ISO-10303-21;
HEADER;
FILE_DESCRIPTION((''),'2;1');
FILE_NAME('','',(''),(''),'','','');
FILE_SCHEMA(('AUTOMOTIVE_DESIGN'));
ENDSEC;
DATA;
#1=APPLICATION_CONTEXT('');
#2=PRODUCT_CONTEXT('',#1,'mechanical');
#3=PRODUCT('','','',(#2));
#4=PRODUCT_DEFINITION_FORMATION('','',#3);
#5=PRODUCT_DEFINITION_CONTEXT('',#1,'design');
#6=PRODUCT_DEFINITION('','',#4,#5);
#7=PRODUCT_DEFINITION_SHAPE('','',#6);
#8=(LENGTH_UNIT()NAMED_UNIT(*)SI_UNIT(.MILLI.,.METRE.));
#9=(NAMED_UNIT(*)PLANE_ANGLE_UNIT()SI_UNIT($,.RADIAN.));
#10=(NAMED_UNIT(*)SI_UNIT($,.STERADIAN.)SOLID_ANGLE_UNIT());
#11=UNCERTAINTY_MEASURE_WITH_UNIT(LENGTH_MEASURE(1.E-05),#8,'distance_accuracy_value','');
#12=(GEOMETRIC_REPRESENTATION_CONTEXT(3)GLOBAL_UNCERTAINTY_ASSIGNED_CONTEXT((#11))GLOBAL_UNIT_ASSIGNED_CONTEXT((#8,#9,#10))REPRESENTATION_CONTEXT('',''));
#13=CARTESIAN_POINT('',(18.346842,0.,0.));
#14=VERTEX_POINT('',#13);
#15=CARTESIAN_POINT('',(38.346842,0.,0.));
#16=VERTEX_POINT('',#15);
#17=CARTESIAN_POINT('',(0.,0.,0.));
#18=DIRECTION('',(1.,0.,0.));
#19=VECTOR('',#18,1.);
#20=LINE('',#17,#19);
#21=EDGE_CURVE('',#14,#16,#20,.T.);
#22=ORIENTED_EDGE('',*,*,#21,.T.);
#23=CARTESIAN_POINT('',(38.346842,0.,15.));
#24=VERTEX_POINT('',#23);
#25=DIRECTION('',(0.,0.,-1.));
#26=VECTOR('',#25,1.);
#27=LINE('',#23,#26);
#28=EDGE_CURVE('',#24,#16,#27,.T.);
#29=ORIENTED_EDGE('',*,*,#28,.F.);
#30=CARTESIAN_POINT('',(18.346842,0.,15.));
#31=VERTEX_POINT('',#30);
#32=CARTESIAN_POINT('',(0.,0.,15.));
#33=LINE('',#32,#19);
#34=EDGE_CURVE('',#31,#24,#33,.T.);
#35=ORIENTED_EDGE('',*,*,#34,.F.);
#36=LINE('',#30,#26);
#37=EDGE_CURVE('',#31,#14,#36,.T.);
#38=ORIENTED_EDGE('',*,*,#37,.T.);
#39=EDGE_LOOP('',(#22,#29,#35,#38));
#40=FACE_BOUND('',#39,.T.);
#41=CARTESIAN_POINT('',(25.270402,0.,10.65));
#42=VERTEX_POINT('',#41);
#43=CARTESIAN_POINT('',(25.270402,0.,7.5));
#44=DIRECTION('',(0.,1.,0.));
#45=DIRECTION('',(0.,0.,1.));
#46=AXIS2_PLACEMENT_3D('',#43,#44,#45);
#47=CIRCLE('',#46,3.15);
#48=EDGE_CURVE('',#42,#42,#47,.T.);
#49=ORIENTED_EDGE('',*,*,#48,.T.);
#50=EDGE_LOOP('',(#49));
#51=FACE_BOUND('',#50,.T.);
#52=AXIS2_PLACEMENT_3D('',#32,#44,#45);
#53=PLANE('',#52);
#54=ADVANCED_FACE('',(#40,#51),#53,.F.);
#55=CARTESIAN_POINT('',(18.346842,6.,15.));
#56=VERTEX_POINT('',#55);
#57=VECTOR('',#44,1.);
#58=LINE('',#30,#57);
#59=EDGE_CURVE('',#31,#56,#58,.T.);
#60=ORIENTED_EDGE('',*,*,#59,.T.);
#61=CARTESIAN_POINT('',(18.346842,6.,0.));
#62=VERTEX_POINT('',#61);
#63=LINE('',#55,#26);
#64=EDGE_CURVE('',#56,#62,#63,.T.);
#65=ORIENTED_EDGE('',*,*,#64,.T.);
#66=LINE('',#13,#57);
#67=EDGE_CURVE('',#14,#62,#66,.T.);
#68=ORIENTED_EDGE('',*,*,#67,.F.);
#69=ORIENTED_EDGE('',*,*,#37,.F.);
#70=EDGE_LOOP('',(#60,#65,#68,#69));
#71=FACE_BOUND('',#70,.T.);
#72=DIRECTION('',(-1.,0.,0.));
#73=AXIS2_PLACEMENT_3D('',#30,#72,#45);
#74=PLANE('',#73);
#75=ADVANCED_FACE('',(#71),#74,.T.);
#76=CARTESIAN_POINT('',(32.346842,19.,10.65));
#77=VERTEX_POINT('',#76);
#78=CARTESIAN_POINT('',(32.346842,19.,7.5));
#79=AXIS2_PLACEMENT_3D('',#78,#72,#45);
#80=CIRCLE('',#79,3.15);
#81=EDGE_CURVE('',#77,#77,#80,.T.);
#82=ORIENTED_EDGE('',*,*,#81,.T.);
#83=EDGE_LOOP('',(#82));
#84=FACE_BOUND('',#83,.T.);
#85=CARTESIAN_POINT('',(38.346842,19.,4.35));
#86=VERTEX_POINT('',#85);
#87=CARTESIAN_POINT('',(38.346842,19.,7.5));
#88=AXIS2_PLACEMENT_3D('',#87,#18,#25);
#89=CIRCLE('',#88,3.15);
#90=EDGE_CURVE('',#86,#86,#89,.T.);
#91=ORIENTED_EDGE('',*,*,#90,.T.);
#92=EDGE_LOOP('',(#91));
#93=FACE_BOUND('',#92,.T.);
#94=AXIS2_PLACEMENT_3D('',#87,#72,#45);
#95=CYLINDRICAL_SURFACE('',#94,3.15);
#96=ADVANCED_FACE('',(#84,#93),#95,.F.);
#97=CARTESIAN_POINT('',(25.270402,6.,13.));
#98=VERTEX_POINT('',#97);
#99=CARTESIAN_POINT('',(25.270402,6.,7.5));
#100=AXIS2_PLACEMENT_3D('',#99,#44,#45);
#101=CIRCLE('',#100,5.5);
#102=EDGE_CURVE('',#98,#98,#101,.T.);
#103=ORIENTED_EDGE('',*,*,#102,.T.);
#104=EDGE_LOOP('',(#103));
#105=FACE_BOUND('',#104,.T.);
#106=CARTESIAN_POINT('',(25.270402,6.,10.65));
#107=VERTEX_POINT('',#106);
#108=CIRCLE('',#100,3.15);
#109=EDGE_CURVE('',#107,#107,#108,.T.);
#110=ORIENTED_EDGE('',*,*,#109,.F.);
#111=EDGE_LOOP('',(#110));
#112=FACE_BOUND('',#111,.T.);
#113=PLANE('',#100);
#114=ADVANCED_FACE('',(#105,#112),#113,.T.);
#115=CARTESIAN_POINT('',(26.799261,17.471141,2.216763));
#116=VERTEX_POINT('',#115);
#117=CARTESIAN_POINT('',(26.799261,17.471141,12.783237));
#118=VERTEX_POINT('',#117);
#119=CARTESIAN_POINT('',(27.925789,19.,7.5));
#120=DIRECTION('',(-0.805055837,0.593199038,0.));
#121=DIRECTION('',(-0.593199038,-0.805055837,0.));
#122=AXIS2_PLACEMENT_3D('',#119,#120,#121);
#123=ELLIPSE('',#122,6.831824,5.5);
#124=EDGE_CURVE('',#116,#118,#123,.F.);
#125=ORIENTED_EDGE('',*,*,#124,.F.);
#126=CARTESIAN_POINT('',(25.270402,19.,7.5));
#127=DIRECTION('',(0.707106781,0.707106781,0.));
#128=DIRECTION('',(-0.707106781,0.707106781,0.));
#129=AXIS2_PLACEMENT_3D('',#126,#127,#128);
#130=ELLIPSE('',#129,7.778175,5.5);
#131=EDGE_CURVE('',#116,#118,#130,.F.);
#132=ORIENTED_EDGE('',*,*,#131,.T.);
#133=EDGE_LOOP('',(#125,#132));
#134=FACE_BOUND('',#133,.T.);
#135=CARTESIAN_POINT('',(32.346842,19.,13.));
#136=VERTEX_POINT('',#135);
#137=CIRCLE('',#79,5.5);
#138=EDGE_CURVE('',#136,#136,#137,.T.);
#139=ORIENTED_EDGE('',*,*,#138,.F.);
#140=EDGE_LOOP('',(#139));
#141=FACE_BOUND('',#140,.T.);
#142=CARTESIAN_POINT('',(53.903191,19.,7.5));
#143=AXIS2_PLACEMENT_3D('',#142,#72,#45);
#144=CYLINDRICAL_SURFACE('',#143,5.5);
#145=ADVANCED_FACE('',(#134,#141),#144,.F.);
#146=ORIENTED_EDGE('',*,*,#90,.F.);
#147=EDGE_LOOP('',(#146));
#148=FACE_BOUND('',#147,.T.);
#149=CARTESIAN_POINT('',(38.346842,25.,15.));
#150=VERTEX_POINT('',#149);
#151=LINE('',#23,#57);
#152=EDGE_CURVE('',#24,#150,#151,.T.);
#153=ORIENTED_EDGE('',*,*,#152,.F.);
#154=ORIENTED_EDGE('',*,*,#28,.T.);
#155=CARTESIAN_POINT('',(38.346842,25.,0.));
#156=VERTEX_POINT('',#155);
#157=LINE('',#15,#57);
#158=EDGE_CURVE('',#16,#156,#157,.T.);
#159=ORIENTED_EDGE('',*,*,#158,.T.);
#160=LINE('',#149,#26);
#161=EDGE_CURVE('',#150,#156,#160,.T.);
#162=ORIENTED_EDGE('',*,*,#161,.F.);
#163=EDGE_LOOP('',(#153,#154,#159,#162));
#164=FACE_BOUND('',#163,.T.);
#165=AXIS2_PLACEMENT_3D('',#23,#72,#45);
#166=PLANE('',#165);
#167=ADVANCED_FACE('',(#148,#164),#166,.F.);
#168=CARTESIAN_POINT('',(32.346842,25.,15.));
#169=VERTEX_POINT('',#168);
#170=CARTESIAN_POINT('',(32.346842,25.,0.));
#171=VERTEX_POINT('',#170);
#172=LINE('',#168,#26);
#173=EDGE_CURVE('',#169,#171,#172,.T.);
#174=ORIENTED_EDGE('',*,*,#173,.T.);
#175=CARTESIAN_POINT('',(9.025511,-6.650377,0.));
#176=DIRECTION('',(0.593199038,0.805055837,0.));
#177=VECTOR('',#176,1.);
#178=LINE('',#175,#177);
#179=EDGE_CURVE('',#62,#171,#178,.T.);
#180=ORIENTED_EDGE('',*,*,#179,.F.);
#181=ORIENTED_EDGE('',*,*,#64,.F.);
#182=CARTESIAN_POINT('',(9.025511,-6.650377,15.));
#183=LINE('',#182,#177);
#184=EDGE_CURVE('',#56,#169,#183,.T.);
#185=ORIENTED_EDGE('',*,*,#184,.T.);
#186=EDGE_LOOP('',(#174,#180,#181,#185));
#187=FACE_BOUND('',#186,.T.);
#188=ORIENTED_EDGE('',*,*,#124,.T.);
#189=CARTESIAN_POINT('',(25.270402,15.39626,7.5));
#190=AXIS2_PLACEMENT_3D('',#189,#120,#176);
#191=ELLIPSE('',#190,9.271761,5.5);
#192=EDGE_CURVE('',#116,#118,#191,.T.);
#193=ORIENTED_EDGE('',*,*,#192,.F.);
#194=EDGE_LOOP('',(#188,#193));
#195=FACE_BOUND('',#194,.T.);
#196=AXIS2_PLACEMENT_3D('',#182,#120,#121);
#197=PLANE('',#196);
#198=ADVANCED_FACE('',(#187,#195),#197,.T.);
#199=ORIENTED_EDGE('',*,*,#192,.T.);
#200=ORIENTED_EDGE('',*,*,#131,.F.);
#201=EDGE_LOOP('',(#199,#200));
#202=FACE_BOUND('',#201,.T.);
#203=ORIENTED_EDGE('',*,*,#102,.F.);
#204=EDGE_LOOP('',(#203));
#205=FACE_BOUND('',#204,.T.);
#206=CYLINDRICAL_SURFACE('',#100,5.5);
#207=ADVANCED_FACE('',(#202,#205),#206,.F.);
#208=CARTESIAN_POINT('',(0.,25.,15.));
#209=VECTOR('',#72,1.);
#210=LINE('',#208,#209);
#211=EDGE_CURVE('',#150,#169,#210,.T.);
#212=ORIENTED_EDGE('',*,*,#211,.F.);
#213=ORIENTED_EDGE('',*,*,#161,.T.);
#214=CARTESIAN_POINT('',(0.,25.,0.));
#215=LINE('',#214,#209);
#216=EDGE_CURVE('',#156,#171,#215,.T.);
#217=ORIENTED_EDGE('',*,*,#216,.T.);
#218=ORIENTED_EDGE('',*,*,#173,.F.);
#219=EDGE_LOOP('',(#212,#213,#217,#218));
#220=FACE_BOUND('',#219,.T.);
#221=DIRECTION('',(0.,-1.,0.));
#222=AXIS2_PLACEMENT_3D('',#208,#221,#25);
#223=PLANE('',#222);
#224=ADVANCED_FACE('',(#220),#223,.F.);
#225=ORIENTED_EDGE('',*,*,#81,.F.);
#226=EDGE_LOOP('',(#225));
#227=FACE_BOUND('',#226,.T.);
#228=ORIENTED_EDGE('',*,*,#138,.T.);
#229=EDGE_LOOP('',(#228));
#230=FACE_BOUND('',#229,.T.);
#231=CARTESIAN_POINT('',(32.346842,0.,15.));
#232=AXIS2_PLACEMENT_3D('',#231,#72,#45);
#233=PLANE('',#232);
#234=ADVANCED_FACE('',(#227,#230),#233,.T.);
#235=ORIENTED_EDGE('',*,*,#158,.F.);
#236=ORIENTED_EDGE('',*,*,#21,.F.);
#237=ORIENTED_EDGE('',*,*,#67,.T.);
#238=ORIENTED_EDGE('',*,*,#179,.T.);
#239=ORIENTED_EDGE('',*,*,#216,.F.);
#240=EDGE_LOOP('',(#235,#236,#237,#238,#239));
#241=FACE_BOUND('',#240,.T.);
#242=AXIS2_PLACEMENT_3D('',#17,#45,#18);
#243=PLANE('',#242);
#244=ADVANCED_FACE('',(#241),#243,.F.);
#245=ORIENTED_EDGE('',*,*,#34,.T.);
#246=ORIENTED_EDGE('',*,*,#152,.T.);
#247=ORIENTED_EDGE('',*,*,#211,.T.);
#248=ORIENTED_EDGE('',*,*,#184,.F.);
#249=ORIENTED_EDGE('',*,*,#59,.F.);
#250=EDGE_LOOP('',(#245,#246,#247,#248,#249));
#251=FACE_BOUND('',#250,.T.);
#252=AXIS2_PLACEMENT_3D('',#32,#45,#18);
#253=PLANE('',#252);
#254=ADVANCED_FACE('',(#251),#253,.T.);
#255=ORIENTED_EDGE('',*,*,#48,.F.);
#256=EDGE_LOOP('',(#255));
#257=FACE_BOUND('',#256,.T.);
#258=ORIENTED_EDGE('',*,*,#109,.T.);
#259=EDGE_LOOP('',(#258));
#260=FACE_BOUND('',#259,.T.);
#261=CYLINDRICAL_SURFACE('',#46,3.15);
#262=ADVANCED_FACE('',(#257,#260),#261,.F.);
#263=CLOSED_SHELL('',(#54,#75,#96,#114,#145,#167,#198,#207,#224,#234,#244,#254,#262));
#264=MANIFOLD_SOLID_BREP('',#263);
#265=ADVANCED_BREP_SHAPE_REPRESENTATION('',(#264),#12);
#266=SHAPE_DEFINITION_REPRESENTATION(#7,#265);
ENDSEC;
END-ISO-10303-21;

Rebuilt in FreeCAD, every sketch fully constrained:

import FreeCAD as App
import Part
import Sketcher
from FreeCAD import Vector
Q = App.Units.Quantity


def add_polygon(sketch, points):
    """Adds a closed chain of lines whose ends are joined by coincident constraints."""
    first, n = sketch.GeometryCount, len(points)
    for a, b in zip(points, points[1:] + points[:1]):
        sketch.addGeometry(Part.LineSegment(App.Vector(*a, 0), App.Vector(*b, 0)), False)
    for i in range(n):
        sketch.addConstraint(Sketcher.Constraint("Coincident", first + i, 2, first + (i + 1) % n, 1))

doc = App.newDocument("Part")
body = doc.addObject("PartDesign::Body", "Body")

# Sketch on XY plane
sketch1 = body.newObject("Sketcher::SketchObject", "Sketch")
sketch1.AttachmentSupport = (doc.getObject("XY_Plane"), [""])
sketch1.MapMode = "FlatFace"
add_polygon(sketch1, [(18.346842, 0), (38.346842, 0), (38.346842, 25), (32.346842, 25), (18.346842, 6)])  # lines 0-4
sketch1.addConstraint([
    Sketcher.Constraint("Horizontal", 0),
    Sketcher.Constraint("Vertical", 1),
    Sketcher.Constraint("Horizontal", 2),
    Sketcher.Constraint("Vertical", 4),
    Sketcher.Constraint("PointOnObject", 0, 2, -1),
    Sketcher.Constraint("Equal", 2, 4),
    Sketcher.Constraint("DistanceX", 0, 1, 0, 2, Q("20 mm")),
    Sketcher.Constraint("DistanceX", 2, 2, 2, 1, Q("6 mm")),
    Sketcher.Constraint("DistanceY", 1, 1, 1, 2, Q("25 mm")),
    Sketcher.Constraint("DistanceX", -1, 1, 0, 2, Q("38.346842 mm")),
])
pad1 = body.newObject("PartDesign::Pad", "Pad")
pad1.Profile = sketch1
pad1.Length = 15

# Sketch on XZ plane
sketch2 = body.newObject("Sketcher::SketchObject", "Sketch001")
sketch2.AttachmentSupport = (doc.getObject("XZ_Plane"), [""])
sketch2.MapMode = "FlatFace"
sketch2.AttachmentOffset = App.Placement(Vector(0, 0, -20), App.Rotation())
sketch2.addGeometry(Part.Circle(Vector(25.270402, 7.5, 0), Vector(0, 0, 1), 3.15), False)
sketch2.addConstraint([
    Sketcher.Constraint("Diameter", 0, Q("6.3 mm")),
    Sketcher.Constraint("DistanceY", -1, 1, 0, 3, Q("7.5 mm")),
    Sketcher.Constraint("DistanceX", -1, 1, 0, 3, Q("25.270402 mm")),
])
pocket1 = body.newObject("PartDesign::Pocket", "Pocket")
pocket1.Profile = sketch2
pocket1.Type = "ThroughAll"
pocket1.Reversed = True

# Sketch on XZ plane
sketch3 = body.newObject("Sketcher::SketchObject", "Sketch002")
sketch3.AttachmentSupport = (doc.getObject("XZ_Plane"), [""])
sketch3.MapMode = "FlatFace"
sketch3.AttachmentOffset = App.Placement(Vector(0, 0, -20), App.Rotation())
sketch3.addGeometry([
    Part.Circle(Vector(25.270402, 7.5, 0), Vector(0, 0, 1), 5.5),
    Part.Circle(Vector(25.270402, 7.5, 0), Vector(0, 0, 1), 3.15),
], False)
sketch3.addConstraint([
    Sketcher.Constraint("Coincident", 1, 3, 0, 3),
    Sketcher.Constraint("Diameter", 0, Q("11 mm")),
    Sketcher.Constraint("Diameter", 1, Q("6.3 mm")),
    Sketcher.Constraint("DistanceY", -1, 1, 0, 3, Q("7.5 mm")),
    Sketcher.Constraint("DistanceX", -1, 1, 0, 3, Q("25.270402 mm")),
])
pocket2 = body.newObject("PartDesign::Pocket", "Pocket001")
pocket2.Profile = sketch3
pocket2.Length = 14
pocket2.Reversed = True

# Sketch on YZ plane
sketch4 = body.newObject("Sketcher::SketchObject", "Sketch003")
sketch4.AttachmentSupport = (doc.getObject("YZ_Plane"), [""])
sketch4.MapMode = "FlatFace"
sketch4.addGeometry(Part.Circle(Vector(19, 7.5, 0), Vector(0, 0, 1), 3.15), False)
sketch4.addConstraint([
    Sketcher.Constraint("Diameter", 0, Q("6.3 mm")),
    Sketcher.Constraint("DistanceX", -1, 1, 0, 3, Q("19 mm")),
    Sketcher.Constraint("DistanceY", -1, 1, 0, 3, Q("7.5 mm")),
])
pocket3 = body.newObject("PartDesign::Pocket", "Pocket002")
pocket3.Profile = sketch4
pocket3.Type = "ThroughAll"
pocket3.Reversed = True

# Sketch on YZ plane
sketch5 = body.newObject("Sketcher::SketchObject", "Sketch004")
sketch5.AttachmentSupport = (doc.getObject("YZ_Plane"), [""])
sketch5.MapMode = "FlatFace"
sketch5.addGeometry([
    Part.Circle(Vector(19, 7.5, 0), Vector(0, 0, 1), 5.5),
    Part.Circle(Vector(19, 7.5, 0), Vector(0, 0, 1), 3.15),
], False)
sketch5.addConstraint([
    Sketcher.Constraint("Coincident", 1, 3, 0, 3),
    Sketcher.Constraint("Diameter", 0, Q("11 mm")),
    Sketcher.Constraint("Diameter", 1, Q("6.3 mm")),
    Sketcher.Constraint("DistanceX", -1, 1, 0, 3, Q("19 mm")),
    Sketcher.Constraint("DistanceY", -1, 1, 0, 3, Q("7.5 mm")),
])
pocket4 = body.newObject("PartDesign::Pocket", "Pocket003")
pocket4.Profile = sketch5
pocket4.Length = 32.346842
pocket4.Reversed = True

doc.recompute()
